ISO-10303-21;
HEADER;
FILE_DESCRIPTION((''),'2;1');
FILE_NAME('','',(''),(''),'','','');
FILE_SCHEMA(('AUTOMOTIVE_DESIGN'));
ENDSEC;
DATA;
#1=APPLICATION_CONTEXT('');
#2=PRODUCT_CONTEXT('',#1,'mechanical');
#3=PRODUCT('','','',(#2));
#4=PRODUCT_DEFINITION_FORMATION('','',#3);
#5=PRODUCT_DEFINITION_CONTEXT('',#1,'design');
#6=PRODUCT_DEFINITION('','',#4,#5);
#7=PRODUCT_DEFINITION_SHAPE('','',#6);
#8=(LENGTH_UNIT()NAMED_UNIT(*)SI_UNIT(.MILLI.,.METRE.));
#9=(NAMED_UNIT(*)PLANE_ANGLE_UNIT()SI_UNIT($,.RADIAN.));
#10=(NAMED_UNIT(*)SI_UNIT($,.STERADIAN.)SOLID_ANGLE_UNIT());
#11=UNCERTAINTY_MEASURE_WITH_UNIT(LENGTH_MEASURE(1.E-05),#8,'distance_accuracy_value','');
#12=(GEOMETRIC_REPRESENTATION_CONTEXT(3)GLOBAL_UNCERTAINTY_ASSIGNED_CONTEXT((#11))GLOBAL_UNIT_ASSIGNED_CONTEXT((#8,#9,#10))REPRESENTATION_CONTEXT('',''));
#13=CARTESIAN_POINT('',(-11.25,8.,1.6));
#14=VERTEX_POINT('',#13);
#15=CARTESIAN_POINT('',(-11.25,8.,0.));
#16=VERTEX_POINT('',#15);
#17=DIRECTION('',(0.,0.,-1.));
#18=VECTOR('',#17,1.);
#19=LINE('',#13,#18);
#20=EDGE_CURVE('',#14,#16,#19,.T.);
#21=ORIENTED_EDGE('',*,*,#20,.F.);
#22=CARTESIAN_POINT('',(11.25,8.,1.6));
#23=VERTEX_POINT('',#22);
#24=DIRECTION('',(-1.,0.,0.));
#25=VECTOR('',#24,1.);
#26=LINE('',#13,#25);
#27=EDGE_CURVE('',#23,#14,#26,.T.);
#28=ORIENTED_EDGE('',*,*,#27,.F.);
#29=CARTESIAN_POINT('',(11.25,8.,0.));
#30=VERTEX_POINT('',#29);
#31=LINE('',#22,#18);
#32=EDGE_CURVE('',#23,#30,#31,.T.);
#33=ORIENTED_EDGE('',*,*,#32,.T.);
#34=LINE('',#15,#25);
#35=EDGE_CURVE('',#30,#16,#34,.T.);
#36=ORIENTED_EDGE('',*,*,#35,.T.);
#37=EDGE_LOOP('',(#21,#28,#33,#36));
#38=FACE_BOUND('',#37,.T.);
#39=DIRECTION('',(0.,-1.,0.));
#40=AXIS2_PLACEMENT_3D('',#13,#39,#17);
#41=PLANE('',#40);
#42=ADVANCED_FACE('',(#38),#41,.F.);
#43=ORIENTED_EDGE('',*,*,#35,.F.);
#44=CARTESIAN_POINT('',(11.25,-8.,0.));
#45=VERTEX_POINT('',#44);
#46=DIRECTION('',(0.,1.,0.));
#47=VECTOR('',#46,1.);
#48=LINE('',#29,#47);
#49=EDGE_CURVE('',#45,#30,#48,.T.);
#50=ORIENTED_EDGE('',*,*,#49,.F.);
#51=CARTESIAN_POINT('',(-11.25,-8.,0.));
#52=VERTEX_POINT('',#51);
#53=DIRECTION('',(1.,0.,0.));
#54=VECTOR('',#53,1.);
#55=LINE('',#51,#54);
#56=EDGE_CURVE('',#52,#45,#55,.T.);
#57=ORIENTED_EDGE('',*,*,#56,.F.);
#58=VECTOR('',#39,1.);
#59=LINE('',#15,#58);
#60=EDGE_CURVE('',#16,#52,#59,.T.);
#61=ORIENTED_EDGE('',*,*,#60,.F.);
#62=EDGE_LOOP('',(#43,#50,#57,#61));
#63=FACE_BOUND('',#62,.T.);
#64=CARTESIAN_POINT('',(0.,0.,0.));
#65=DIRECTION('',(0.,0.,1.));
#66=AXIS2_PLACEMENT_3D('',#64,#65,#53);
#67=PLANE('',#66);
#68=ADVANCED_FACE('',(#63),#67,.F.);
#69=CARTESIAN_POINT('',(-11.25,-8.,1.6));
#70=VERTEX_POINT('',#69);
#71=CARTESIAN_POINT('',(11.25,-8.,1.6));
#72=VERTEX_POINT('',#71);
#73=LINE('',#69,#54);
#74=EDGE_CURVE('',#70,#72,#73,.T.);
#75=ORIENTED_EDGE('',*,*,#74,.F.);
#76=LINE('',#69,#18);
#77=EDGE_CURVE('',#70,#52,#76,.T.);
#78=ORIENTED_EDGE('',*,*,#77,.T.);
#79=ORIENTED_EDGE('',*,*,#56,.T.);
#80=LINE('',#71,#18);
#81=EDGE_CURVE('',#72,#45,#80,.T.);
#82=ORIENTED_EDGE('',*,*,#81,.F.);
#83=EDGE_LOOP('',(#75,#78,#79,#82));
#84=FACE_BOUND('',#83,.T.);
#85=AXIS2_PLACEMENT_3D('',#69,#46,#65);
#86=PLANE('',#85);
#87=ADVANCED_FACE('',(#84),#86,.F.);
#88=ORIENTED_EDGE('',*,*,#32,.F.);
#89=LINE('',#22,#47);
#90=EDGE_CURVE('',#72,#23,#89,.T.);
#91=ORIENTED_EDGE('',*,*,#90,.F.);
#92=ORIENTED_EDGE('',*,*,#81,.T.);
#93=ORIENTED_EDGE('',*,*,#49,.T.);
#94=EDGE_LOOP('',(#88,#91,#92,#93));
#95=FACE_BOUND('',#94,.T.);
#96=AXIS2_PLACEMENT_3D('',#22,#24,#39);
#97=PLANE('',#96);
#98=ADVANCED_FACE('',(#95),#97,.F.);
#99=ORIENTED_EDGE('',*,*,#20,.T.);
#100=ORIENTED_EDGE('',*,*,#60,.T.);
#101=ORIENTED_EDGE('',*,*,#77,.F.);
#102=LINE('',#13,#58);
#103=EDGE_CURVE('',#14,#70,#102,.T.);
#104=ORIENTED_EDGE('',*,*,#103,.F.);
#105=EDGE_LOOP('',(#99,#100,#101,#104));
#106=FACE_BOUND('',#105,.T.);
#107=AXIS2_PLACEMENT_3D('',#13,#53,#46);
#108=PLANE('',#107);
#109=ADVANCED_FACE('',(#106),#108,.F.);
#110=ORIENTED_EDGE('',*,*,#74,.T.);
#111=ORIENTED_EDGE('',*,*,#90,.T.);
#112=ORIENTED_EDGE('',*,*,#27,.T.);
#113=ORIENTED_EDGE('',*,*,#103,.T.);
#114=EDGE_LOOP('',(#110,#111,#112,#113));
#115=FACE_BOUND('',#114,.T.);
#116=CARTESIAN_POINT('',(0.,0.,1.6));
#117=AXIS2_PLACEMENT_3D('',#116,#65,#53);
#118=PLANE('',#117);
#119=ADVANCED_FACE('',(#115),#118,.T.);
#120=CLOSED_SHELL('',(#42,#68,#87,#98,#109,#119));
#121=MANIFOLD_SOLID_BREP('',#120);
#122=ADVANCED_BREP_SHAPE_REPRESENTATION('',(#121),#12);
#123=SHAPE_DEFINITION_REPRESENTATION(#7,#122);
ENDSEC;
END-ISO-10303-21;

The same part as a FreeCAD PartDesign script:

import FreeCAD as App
import Part
import Sketcher

V = App.Vector
Q = App.Units.Quantity

doc = App.newDocument("Part")
body = doc.addObject("PartDesign::Body", "Body")

# Sketch on XY plane
sketch1 = body.newObject("Sketcher::SketchObject", "Sketch")
sketch1.AttachmentSupport = (doc.getObject("XY_Plane"), [""])
sketch1.MapMode = "FlatFace"
sketch1.addGeometry(Part.LineSegment(V(-11, 8, 0), V(-11, -8, 0)), False)
sketch1.addGeometry(Part.LineSegment(V(-11, -8, 0), V(11, -8, 0)), False)
sketch1.addGeometry(Part.LineSegment(V(11, -8, 0), V(11, 8, 0)), False)
sketch1.addGeometry(Part.LineSegment(V(11, 8, 0), V(-11, 8, 0)), False)
sketch1.addConstraint(Sketcher.Constraint("Coincident", 0, 2, 1, 1))
sketch1.addConstraint(Sketcher.Constraint("Coincident", 1, 2, 2, 1))
sketch1.addConstraint(Sketcher.Constraint("Coincident", 2, 2, 3, 1))
sketch1.addConstraint(Sketcher.Constraint("Coincident", 3, 2, 0, 1))
sketch1.addConstraint(Sketcher.Constraint("Vertical", 0))
sketch1.addConstraint(Sketcher.Constraint("Horizontal", 1))
sketch1.addConstraint(Sketcher.Constraint("Vertical", 2))
sketch1.addConstraint(Sketcher.Constraint("Horizontal", 3))
sketch1.addConstraint(Sketcher.Constraint("Symmetric", 0, 2, 2, 2, -1, 1))
sketch1.addConstraint(Sketcher.Constraint("DistanceY", 0, 2, 0, 1, Q("16 mm")))
sketch1.addConstraint(Sketcher.Constraint("DistanceX", 1, 1, 1, 2, Q("22.5 mm")))
pad1 = body.newObject("PartDesign::Pad", "Pad")
pad1.Profile = sketch1
pad1.Length = 1.6

doc.recompute()
